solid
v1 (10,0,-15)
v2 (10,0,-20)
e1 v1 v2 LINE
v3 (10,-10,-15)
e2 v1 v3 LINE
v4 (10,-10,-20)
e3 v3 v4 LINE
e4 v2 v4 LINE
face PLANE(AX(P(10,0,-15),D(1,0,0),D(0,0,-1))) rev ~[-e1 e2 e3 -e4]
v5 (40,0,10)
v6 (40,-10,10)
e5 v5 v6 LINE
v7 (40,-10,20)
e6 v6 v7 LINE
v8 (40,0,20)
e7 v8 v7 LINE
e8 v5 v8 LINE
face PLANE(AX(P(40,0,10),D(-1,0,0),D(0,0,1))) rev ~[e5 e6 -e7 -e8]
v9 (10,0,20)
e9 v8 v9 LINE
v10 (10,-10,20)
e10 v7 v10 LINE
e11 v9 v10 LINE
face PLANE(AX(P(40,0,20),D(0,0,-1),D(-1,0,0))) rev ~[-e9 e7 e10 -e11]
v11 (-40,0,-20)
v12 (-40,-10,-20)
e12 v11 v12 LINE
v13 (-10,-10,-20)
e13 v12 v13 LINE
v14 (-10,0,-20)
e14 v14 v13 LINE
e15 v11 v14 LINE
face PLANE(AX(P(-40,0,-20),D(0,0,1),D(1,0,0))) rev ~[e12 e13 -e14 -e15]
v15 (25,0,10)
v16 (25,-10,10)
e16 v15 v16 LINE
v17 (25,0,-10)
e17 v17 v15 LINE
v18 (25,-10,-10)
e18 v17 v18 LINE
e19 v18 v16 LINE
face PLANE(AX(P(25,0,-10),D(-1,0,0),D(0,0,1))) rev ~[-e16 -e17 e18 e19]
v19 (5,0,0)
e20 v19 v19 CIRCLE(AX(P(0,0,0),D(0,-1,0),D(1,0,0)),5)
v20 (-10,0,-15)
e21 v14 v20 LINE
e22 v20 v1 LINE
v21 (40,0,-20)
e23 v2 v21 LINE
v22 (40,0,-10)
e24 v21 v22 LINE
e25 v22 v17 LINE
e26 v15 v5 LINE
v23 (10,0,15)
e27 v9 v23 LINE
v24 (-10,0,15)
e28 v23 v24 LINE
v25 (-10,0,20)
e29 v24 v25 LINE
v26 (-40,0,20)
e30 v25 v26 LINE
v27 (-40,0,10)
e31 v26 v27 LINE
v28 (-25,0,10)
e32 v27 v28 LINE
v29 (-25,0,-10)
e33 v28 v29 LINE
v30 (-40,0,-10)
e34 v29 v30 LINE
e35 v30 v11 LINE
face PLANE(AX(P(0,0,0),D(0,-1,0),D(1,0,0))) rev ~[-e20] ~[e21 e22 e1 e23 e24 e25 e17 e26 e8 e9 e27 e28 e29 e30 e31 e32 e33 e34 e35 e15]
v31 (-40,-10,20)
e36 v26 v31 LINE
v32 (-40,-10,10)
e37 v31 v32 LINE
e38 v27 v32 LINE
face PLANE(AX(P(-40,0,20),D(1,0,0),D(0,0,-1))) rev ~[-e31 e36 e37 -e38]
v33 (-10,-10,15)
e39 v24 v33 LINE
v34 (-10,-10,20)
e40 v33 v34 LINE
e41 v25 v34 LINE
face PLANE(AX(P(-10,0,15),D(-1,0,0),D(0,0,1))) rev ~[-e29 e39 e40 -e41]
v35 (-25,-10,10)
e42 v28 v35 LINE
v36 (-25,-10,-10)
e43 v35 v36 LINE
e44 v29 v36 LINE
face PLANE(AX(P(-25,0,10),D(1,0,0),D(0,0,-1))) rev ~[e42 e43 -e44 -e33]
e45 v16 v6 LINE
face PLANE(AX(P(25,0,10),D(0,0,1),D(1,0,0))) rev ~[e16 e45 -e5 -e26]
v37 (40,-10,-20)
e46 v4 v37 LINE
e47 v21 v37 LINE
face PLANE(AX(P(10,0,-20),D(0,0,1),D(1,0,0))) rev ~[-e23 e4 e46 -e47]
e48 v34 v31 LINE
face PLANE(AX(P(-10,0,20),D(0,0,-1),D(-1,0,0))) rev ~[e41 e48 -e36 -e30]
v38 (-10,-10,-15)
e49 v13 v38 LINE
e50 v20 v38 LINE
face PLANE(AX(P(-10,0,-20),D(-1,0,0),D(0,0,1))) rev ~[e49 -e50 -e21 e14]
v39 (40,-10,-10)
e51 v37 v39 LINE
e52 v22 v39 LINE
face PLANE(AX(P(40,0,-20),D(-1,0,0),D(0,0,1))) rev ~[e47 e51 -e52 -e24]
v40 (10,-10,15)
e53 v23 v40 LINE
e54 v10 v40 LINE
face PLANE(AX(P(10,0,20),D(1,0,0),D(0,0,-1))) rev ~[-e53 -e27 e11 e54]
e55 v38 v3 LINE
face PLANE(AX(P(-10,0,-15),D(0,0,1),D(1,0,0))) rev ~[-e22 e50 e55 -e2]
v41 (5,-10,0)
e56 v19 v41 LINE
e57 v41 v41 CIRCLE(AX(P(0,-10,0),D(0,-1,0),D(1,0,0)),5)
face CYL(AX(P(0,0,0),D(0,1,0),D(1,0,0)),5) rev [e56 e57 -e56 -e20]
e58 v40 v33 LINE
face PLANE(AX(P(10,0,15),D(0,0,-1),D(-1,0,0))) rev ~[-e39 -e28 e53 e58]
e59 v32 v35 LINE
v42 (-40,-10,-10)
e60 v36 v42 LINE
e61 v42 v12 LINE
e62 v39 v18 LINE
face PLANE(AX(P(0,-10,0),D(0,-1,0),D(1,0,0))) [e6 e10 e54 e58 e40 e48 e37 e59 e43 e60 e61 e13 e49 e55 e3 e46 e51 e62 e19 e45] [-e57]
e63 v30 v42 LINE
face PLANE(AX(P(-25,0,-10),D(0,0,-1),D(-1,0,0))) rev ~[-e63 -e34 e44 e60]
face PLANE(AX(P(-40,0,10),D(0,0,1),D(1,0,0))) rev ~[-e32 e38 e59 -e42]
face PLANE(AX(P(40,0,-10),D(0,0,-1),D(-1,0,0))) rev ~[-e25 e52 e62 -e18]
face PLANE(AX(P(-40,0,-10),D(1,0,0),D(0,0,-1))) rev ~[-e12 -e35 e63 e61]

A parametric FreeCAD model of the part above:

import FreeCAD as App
import Part
import Sketcher
Q = App.Units.Quantity

doc = App.newDocument("Part")
params = doc.addObject("Spreadsheet::Sheet", "Params")
for row, (alias, value) in enumerate([
    ("sketch1_diameter", "10 mm"),
    ("sketch1_width", "20 mm"),
    ("sketch1_width2", "30 mm"),
    ("sketch1_width3", "15 mm"),
    ("sketch1_height", "5 mm"),
    ("pad1_length", "10 mm"),
], start=1):
    params.set(f"A{row}", alias)
    params.set(f"B{row}", "=" + value)
    params.setAlias(f"B{row}", alias)

body = doc.addObject("PartDesign::Body", "Body")

# Sketch on XZ plane
sketch1 = doc.addObject("Sketcher::SketchObject", "Sketch")
body.addObject(sketch1)
sketch1.AttachmentSupport = (doc.XZ_Plane, [""])
sketch1.MapMode = "FlatFace"
sketch1.addGeometry(Part.LineSegment(App.Vector(10, 20, 0), App.Vector(10, 15, 0)), False)
sketch1.addGeometry(Part.LineSegment(App.Vector(10, 15, 0), App.Vector(-10, 15, 0)), False)
sketch1.addGeometry(Part.LineSegment(App.Vector(-10, 15, 0), App.Vector(-10, 20, 0)), False)
sketch1.addGeometry(Part.LineSegment(App.Vector(-10, 20, 0), App.Vector(-40, 20, 0)), False)
sketch1.addGeometry(Part.LineSegment(App.Vector(-40, 20, 0), App.Vector(-40, 10, 0)), False)
sketch1.addGeometry(Part.LineSegment(App.Vector(-40, 10, 0), App.Vector(-25, 10, 0)), False)
sketch1.addGeometry(Part.LineSegment(App.Vector(-25, 10, 0), App.Vector(-25, -10, 0)), False)
sketch1.addGeometry(Part.LineSegment(App.Vector(-25, -10, 0), App.Vector(-40, -10, 0)), False)
sketch1.addGeometry(Part.LineSegment(App.Vector(-40, -10, 0), App.Vector(-40, -20, 0)), False)
sketch1.addGeometry(Part.LineSegment(App.Vector(-40, -20, 0), App.Vector(-10, -20, 0)), False)
sketch1.addGeometry(Part.LineSegment(App.Vector(-10, -20, 0), App.Vector(-10, -15, 0)), False)
sketch1.addGeometry(Part.LineSegment(App.Vector(-10, -15, 0), App.Vector(10, -15, 0)), False)
sketch1.addGeometry(Part.LineSegment(App.Vector(10, -15, 0), App.Vector(10, -20, 0)), False)
sketch1.addGeometry(Part.LineSegment(App.Vector(10, -20, 0), App.Vector(40, -20, 0)), False)
sketch1.addGeometry(Part.LineSegment(App.Vector(40, -20, 0), App.Vector(40, -10, 0)), False)
sketch1.addGeometry(Part.LineSegment(App.Vector(40, -10, 0), App.Vector(25, -10, 0)), False)
sketch1.addGeometry(Part.LineSegment(App.Vector(25, -10, 0), App.Vector(25, 10, 0)), False)
sketch1.addGeometry(Part.LineSegment(App.Vector(25, 10, 0), App.Vector(40, 10, 0)), False)
sketch1.addGeometry(Part.LineSegment(App.Vector(40, 10, 0), App.Vector(40, 20, 0)), False)
sketch1.addGeometry(Part.LineSegment(App.Vector(40, 20, 0), App.Vector(10, 20, 0)), False)
sketch1.addGeometry(Part.Circle(App.Vector(0, 0, 0), App.Vector(0, 0, 1), 5), False)
sketch1.addConstraint(Sketcher.Constraint("Coincident", 0, 2, 1, 1))
sketch1.addConstraint(Sketcher.Constraint("Coincident", 1, 2, 2, 1))
sketch1.addConstraint(Sketcher.Constraint("Coincident", 2, 2, 3, 1))
sketch1.addConstraint(Sketcher.Constraint("Coincident", 3, 2, 4, 1))
sketch1.addConstraint(Sketcher.Constraint("Coincident", 4, 2, 5, 1))
sketch1.addConstraint(Sketcher.Constraint("Coincident", 5, 2, 6, 1))
sketch1.addConstraint(Sketcher.Constraint("Coincident", 6, 2, 7, 1))
sketch1.addConstraint(Sketcher.Constraint("Coincident", 7, 2, 8, 1))
sketch1.addConstraint(Sketcher.Constraint("Coincident", 8, 2, 9, 1))
sketch1.addConstraint(Sketcher.Constraint("Coincident", 9, 2, 10, 1))
sketch1.addConstraint(Sketcher.Constraint("Coincident", 10, 2, 11, 1))
sketch1.addConstraint(Sketcher.Constraint("Coincident", 11, 2, 12, 1))
sketch1.addConstraint(Sketcher.Constraint("Coincident", 12, 2, 13, 1))
sketch1.addConstraint(Sketcher.Constraint("Coincident", 13, 2, 14, 1))
sketch1.addConstraint(Sketcher.Constraint("Coincident", 14, 2, 15, 1))
sketch1.addConstraint(Sketcher.Constraint("Coincident", 15, 2, 16, 1))
sketch1.addConstraint(Sketcher.Constraint("Coincident", 16, 2, 17, 1))
sketch1.addConstraint(Sketcher.Constraint("Coincident", 17, 2, 18, 1))
sketch1.addConstraint(Sketcher.Constraint("Coincident", 18, 2, 19, 1))
sketch1.addConstraint(Sketcher.Constraint("Coincident", 19, 2, 0, 1))
sketch1.addConstraint(Sketcher.Constraint("Vertical", 0))
sketch1.addConstraint(Sketcher.Constraint("Horizontal", 1))
sketch1.addConstraint(Sketcher.Constraint("Vertical", 2))
sketch1.addConstraint(Sketcher.Constraint("Horizontal", 3))
sketch1.addConstraint(Sketcher.Constraint("Vertical", 4))
sketch1.addConstraint(Sketcher.Constraint("Horizontal", 5))
sketch1.addConstraint(Sketcher.Constraint("Vertical", 6))
sketch1.addConstraint(Sketcher.Constraint("Horizontal", 7))
sketch1.addConstraint(Sketcher.Constraint("Vertical", 8))
sketch1.addConstraint(Sketcher.Constraint("Horizontal", 9))
sketch1.addConstraint(Sketcher.Constraint("Vertical", 10))
sketch1.addConstraint(Sketcher.Constraint("Horizontal", 11))
sketch1.addConstraint(Sketcher.Constraint("Vertical", 12))
sketch1.addConstraint(Sketcher.Constraint("Horizontal", 13))
sketch1.addConstraint(Sketcher.Constraint("Vertical", 14))
sketch1.addConstraint(Sketcher.Constraint("Horizontal", 15))
sketch1.addConstraint(Sketcher.Constraint("Vertical", 16))
sketch1.addConstraint(Sketcher.Constraint("Horizontal", 17))
sketch1.addConstraint(Sketcher.Constraint("Vertical", 18))
sketch1.addConstraint(Sketcher.Constraint("Horizontal", 19))
sketch1.addConstraint(Sketcher.Constraint("Coincident", 20, 3, -1, 1))
sketch1.addConstraint(Sketcher.Constraint("Symmetric", 0, 2, 10, 2, -1, 1))
sketch1.addConstraint(Sketcher.Constraint("Symmetric", 2, 2, 12, 2, -1, 1))
sketch1.addConstraint(Sketcher.Constraint("Symmetric", 4, 2, 14, 2, -1, 1))
sketch1.addConstraint(Sketcher.Constraint("Symmetric", 6, 2, 16, 2, -1, 1))
sketch1.addConstraint(Sketcher.Constraint("Symmetric", 8, 2, 18, 2, -1, 1))
sketch1.addConstraint(Sketcher.Constraint("Symmetric", 9, 2, 12, 2, -2))
sketch1.addConstraint(Sketcher.Constraint("Symmetric", 7, 2, 14, 2, -2))
sketch1.addConstraint(Sketcher.Constraint("Equal", 11, 6))
sketch1.addConstraint(Sketcher.Constraint("Diameter", 20, Q("10 mm")))
sketch1.addConstraint(Sketcher.Constraint("DistanceX", 1, 2, 1, 1, Q("20 mm")))
sketch1.addConstraint(Sketcher.Constraint("DistanceX", 3, 2, 3, 1, Q("30 mm")))
sketch1.addConstraint(Sketcher.Constraint("DistanceX", 5, 1, 5, 2, Q("15 mm")))
sketch1.addConstraint(Sketcher.Constraint("DistanceY", 0, 2, 0, 1, Q("5 mm")))
sketch1.addConstraint(Sketcher.Constraint("DistanceY", 4, 2, 4, 1, Q("10 mm")))
sketch1.setExpression("Constraints[49]", "Params.sketch1_diameter")
sketch1.setExpression("Constraints[50]", "Params.sketch1_width")
sketch1.setExpression("Constraints[51]", "Params.sketch1_width2")
sketch1.setExpression("Constraints[52]", "Params.sketch1_width3")
sketch1.setExpression("Constraints[53]", "Params.sketch1_height")
pad1 = doc.addObject("PartDesign::Pad", "Pad")
body.addObject(pad1)
pad1.Profile = sketch1
pad1.setExpression("Length", "Params.pad1_length")

doc.recompute()
